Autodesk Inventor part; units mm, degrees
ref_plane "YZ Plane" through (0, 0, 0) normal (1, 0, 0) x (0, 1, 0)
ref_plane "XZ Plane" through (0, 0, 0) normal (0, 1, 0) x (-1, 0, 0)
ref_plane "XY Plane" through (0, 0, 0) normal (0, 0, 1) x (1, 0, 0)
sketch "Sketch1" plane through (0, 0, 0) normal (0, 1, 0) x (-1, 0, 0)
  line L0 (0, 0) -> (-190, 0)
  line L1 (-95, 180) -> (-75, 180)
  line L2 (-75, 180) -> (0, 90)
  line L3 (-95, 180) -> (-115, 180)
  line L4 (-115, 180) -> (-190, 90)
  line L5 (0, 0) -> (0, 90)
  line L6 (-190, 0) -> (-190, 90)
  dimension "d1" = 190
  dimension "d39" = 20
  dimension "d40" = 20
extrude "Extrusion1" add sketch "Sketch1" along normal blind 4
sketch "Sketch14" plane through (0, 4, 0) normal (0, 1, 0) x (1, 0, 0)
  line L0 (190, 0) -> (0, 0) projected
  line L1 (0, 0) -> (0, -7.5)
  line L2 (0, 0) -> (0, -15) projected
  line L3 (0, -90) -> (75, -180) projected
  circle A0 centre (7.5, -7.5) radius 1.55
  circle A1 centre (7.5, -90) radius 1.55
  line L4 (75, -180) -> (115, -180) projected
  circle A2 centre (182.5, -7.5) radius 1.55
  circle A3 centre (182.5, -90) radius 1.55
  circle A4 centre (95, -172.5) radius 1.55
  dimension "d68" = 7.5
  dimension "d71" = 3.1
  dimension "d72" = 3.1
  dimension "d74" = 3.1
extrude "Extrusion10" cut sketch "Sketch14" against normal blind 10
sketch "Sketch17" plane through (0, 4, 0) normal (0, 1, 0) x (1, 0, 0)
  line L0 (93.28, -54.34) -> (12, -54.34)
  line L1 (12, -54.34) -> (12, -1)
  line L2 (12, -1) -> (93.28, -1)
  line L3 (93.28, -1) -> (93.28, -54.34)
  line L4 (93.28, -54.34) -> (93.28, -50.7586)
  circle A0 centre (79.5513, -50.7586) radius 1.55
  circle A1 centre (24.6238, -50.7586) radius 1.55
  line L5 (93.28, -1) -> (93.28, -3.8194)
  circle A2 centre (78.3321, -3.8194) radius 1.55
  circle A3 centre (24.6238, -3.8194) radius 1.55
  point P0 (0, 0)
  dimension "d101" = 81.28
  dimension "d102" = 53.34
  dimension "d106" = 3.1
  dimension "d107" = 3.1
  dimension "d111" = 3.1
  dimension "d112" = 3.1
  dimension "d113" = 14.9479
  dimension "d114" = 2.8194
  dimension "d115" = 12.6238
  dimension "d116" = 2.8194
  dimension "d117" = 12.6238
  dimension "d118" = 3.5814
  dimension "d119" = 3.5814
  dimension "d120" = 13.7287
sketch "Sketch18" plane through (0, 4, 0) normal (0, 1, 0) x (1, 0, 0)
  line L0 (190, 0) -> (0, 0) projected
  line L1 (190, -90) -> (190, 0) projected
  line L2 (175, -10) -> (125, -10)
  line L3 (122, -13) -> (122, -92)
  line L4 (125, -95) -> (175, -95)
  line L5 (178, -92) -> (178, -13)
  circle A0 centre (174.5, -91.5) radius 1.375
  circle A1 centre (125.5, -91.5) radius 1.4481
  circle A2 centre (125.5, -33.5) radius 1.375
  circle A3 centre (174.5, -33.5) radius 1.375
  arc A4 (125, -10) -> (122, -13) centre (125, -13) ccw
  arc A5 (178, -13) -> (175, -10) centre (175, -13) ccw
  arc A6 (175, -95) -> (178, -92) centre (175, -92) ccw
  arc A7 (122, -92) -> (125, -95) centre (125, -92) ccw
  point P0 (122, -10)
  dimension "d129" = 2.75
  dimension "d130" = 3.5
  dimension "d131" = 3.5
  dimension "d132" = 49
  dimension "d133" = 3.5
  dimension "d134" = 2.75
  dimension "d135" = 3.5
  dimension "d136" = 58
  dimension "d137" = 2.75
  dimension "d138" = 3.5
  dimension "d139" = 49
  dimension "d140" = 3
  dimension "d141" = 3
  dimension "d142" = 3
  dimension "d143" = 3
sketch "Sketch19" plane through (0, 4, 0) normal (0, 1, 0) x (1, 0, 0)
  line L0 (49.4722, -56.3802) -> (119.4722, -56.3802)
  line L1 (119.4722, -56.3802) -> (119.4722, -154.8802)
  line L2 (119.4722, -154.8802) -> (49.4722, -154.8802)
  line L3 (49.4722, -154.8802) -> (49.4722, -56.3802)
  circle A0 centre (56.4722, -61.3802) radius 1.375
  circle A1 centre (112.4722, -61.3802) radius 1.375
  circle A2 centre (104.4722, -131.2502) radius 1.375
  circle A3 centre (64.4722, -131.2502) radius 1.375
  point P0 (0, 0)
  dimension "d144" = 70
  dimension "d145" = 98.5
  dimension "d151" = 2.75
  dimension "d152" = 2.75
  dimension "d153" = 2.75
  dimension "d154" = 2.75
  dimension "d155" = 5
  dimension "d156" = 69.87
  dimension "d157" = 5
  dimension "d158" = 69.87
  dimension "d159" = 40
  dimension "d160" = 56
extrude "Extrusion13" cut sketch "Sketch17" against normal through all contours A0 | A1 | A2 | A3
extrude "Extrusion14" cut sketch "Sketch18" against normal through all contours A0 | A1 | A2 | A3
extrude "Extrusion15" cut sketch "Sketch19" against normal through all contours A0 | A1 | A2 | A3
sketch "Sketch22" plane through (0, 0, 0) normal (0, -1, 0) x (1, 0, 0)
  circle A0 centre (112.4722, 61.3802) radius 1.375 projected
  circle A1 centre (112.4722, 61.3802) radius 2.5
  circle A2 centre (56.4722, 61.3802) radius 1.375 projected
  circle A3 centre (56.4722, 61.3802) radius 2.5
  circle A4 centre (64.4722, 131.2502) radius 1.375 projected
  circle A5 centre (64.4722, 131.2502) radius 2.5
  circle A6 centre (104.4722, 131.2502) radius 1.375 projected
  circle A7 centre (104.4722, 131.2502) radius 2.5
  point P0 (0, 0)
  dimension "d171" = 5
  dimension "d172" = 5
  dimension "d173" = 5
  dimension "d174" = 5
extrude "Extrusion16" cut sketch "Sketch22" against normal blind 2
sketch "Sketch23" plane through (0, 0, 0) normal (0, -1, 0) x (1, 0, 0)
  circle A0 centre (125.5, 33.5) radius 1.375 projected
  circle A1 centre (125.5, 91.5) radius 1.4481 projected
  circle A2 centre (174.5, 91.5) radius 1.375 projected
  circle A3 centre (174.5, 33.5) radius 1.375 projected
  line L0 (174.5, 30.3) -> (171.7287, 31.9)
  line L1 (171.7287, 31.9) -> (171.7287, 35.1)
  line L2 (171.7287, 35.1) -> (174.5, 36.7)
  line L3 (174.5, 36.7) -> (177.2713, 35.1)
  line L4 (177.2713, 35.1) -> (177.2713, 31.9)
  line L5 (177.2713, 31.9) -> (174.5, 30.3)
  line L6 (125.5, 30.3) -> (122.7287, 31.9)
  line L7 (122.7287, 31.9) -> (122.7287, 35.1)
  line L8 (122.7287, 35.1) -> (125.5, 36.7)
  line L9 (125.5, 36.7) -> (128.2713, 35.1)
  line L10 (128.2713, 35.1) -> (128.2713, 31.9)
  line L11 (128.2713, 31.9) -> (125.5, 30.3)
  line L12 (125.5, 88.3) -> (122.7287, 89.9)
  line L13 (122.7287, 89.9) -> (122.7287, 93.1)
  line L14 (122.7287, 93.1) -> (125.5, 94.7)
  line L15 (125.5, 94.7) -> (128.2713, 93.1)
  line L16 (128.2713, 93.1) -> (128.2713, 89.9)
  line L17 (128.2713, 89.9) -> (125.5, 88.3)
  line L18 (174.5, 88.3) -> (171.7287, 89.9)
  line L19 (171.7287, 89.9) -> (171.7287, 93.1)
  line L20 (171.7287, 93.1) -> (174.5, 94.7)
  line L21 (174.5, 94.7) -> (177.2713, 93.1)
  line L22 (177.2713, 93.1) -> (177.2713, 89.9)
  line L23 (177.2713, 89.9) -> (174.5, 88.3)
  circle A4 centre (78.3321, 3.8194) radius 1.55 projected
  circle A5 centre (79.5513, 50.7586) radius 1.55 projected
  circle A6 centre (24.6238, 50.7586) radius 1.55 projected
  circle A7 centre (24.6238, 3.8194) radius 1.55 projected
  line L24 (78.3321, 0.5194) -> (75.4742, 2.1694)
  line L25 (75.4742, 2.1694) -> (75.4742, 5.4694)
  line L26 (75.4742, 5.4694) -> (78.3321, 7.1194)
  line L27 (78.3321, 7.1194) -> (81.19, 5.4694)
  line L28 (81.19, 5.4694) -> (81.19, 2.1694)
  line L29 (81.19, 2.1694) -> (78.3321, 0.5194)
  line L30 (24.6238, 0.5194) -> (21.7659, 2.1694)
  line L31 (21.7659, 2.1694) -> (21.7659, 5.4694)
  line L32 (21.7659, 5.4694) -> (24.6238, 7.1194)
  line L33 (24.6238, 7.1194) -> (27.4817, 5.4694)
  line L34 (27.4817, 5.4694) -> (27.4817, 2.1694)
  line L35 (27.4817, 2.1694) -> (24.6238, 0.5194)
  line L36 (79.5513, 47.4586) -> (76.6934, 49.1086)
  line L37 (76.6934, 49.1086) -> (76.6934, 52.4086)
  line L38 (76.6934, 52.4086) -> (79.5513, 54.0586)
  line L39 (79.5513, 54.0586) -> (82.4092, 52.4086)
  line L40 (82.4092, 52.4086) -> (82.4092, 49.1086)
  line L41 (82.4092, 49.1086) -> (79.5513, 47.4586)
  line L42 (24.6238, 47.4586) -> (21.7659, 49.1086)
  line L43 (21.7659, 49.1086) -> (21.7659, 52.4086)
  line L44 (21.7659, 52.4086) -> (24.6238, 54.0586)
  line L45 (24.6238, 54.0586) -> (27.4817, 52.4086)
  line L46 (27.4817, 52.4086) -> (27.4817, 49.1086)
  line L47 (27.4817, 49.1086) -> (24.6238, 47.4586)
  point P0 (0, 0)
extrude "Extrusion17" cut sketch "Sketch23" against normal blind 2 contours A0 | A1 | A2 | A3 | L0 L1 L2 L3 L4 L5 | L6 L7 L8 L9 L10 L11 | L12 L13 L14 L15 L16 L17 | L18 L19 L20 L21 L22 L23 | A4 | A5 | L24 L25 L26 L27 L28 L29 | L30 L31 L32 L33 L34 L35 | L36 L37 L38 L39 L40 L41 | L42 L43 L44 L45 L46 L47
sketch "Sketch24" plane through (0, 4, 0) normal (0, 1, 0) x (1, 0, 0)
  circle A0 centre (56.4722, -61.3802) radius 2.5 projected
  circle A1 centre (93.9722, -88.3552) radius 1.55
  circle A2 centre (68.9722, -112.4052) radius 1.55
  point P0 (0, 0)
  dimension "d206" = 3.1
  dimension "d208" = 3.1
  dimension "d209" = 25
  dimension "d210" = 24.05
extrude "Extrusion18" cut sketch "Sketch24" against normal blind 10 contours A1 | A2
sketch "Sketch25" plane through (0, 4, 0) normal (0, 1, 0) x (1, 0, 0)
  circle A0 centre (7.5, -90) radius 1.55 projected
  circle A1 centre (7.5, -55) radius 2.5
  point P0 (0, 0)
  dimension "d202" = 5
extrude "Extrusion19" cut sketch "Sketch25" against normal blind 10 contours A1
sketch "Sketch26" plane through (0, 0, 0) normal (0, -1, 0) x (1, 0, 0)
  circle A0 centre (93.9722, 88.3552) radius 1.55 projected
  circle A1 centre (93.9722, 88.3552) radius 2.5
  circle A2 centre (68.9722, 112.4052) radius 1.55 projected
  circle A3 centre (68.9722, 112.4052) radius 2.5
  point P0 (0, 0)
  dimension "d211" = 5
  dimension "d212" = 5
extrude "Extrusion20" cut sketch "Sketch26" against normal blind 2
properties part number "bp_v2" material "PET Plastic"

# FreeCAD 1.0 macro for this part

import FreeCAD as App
import Part
import Sketcher

V = App.Vector
Q = App.Units.Quantity

doc = App.newDocument("Part")
body = doc.addObject("PartDesign::Body", "Body")

# Sketch on XZ plane
sketch1 = body.newObject("Sketcher::SketchObject", "Sketch")
sketch1.AttachmentSupport = (doc.getObject("XZ_Plane"), [""])
sketch1.MapMode = "FlatFace"
sketch1.addGeometry([
    Part.LineSegment(V(190, 0, 0), V(0, 0, 0)),  # 0
    Part.LineSegment(V(0, 0, 0), V(0, 90, 0)),  # 1
    Part.LineSegment(V(0, 90, 0), V(75, 180, 0)),  # 2
    Part.LineSegment(V(75, 180, 0), V(115, 180, 0)),  # 3
    Part.LineSegment(V(115, 180, 0), V(190, 90, 0)),  # 4
    Part.LineSegment(V(190, 90, 0), V(190, 0, 0)),  # 5
], False)
sketch1.addConstraint([
    Sketcher.Constraint("Coincident", 0, 2, 1, 1),
    Sketcher.Constraint("Coincident", 1, 2, 2, 1),
    Sketcher.Constraint("Coincident", 2, 2, 3, 1),
    Sketcher.Constraint("Coincident", 3, 2, 4, 1),
    Sketcher.Constraint("Coincident", 4, 2, 5, 1),
    Sketcher.Constraint("Coincident", 5, 2, 0, 1),
    Sketcher.Constraint("Horizontal", 0),
    Sketcher.Constraint("Vertical", 1),
    Sketcher.Constraint("Horizontal", 3),
    Sketcher.Constraint("Vertical", 5),
    Sketcher.Constraint("Coincident", 0, 2, -1, 1),
    Sketcher.Constraint("Horizontal", 1, 2, 4, 2),
    Sketcher.Constraint("Equal", 2, 4),
    Sketcher.Constraint("DistanceX", 0, 2, 0, 1, 190.0),
    Sketcher.Constraint("DistanceX", 3, 1, 3, 2, 40.0),
    Sketcher.Constraint("DistanceY", 1, 1, 1, 2, 90.0),
    Sketcher.Constraint("DistanceY", -1, 1, 2, 2, 180.0),
])
pad1 = body.newObject("PartDesign::Pad", "Pad")
pad1.Profile = sketch1
pad1.Length = 4
pad1.Reversed = True

# Sketch on XZ plane
sketch2 = body.newObject("Sketcher::SketchObject", "Sketch001")
sketch2.AttachmentSupport = (doc.getObject("XZ_Plane"), [""])
sketch2.MapMode = "FlatFace"
sketch2.AttachmentOffset = App.Placement(V(0, 0, -4), App.Rotation())
sketch2.addGeometry([
    Part.Circle(V(7.5, 7.5, 0), V(0, 0, 1), 1.55),  # 0
    Part.Circle(V(7.5, 90, 0), V(0, 0, 1), 1.55),  # 1
    Part.Circle(V(182.5, 7.5, 0), V(0, 0, 1), 1.55),  # 2
    Part.Circle(V(182.5, 90, 0), V(0, 0, 1), 1.55),  # 3
    Part.Circle(V(95, 172.5, 0), V(0, 0, 1), 1.55),  # 4
], False)
sketch2.addConstraint([
    Sketcher.Constraint("Equal", 0, 1),
    Sketcher.Constraint("Equal", 1, 2),
    Sketcher.Constraint("Equal", 2, 3),
    Sketcher.Constraint("Equal", 3, 4),
    Sketcher.Constraint("Horizontal", 0, 3, 2, 3),
    Sketcher.Constraint("Horizontal", 1, 3, 3, 3),
    Sketcher.Constraint("Vertical", 0, 3, 1, 3),
    Sketcher.Constraint("Vertical", 2, 3, 3, 3),
    Sketcher.Constraint("Diameter", 0, 3.1),
    Sketcher.Constraint("DistanceX", -1, 1, 0, 3, 7.5),
    Sketcher.Constraint("DistanceY", -1, 1, 0, 3, 7.5),
    Sketcher.Constraint("DistanceY", -1, 1, 1, 3, 90.0),
    Sketcher.Constraint("DistanceX", -1, 1, 4, 3, 95.0),
    Sketcher.Constraint("DistanceX", 0, 3, 2, 3, 175.0),
    Sketcher.Constraint("DistanceY", 0, 3, 4, 3, 165.0),
])
pocket1 = body.newObject("PartDesign::Pocket", "Pocket")
pocket1.Profile = sketch2
pocket1.Length = 10
pocket1.Reversed = True

# Sketch on XZ plane
sketch3 = body.newObject("Sketcher::SketchObject", "Sketch002")
sketch3.AttachmentSupport = (doc.getObject("XZ_Plane"), [""])
sketch3.MapMode = "FlatFace"
sketch3.AttachmentOffset = App.Placement(V(0, 0, -4), App.Rotation())
sketch3.addGeometry([
    Part.Circle(V(79.5513, 50.7586, 0), V(0, 0, 1), 1.55),
    Part.Circle(V(24.6238, 50.7586, 0), V(0, 0, 1), 1.55),
    Part.Circle(V(78.3321, 3.8194, 0), V(0, 0, 1), 1.55),
    Part.Circle(V(24.6238, 3.8194, 0), V(0, 0, 1), 1.55),
], False)
sketch3.addConstraint([
    Sketcher.Constraint("Equal", 0, 1),
    Sketcher.Constraint("Equal", 1, 2),
    Sketcher.Constraint("Equal", 2, 3),
    Sketcher.Constraint("Horizontal", 0, 3, 1, 3),
    Sketcher.Constraint("Horizontal", 2, 3, 3, 3),
    Sketcher.Constraint("Vertical", 1, 3, 3, 3),
    Sketcher.Constraint("Diameter", 0, 3.1),
    Sketcher.Constraint("DistanceX", -1, 1, 2, 3, 78.332),
    Sketcher.Constraint("DistanceX", -1, 1, 0, 3, 79.5513),
    Sketcher.Constraint("DistanceY", -1, 1, 0, 3, 50.7586),
    Sketcher.Constraint("DistanceX", -1, 1, 1, 3, 24.6238),
    Sketcher.Constraint("DistanceY", -1, 1, 2, 3, 3.8194),
])
pocket2 = body.newObject("PartDesign::Pocket", "Pocket001")
pocket2.Profile = sketch3
pocket2.Type = "ThroughAll"
pocket2.Reversed = True

# Sketch on XZ plane
sketch4 = body.newObject("Sketcher::SketchObject", "Sketch003")
sketch4.AttachmentSupport = (doc.getObject("XZ_Plane"), [""])
sketch4.MapMode = "FlatFace"
sketch4.AttachmentOffset = App.Placement(V(0, 0, -4), App.Rotation())
sketch4.addGeometry([
    Part.Circle(V(174.5, 91.5, 0), V(0, 0, 1), 1.375),
    Part.Circle(V(125.5, 91.5, 0), V(0, 0, 1), 1.4481),
    Part.Circle(V(125.5, 33.5, 0), V(0, 0, 1), 1.375),
    Part.Circle(V(174.5, 33.5, 0), V(0, 0, 1), 1.375),
], False)
sketch4.addConstraint([
    Sketcher.Constraint("Equal", 0, 2),
    Sketcher.Constraint("Equal", 2, 3),
    Sketcher.Constraint("Horizontal", 0, 3, 1, 3),
    Sketcher.Constraint("Horizontal", 2, 3, 3, 3),
    Sketcher.Constraint("Vertical", 1, 3, 2, 3),
    Sketcher.Constraint("Vertical", 0, 3, 3, 3),
    Sketcher.Constraint("Diameter", 0, 2.75),
    Sketcher.Constraint("DistanceX", 1, 3, 0, 3, 49.0),
    Sketcher.Constraint("DistanceY", 2, 3, 1, 3, 58.0),
    Sketcher.Constraint("Diameter", 1, 2.8962),
    Sketcher.Constraint("DistanceX", -1, 1, 0, 3, 174.5),
    Sketcher.Constraint("DistanceY", -1, 1, 0, 3, 91.5),
])
pocket3 = body.newObject("PartDesign::Pocket", "Pocket002")
pocket3.Profile = sketch4
pocket3.Type = "ThroughAll"
pocket3.Reversed = True

# Sketch on XZ plane
sketch5 = body.newObject("Sketcher::SketchObject", "Sketch004")
sketch5.AttachmentSupport = (doc.getObject("XZ_Plane"), [""])
sketch5.MapMode = "FlatFace"
sketch5.AttachmentOffset = App.Placement(V(0, 0, -4), App.Rotation())
sketch5.addGeometry([
    Part.Circle(V(56.4722, 61.3802, 0), V(0, 0, 1), 1.375),
    Part.Circle(V(112.4722, 61.3802, 0), V(0, 0, 1), 1.375),
    Part.Circle(V(104.4722, 131.2502, 0), V(0, 0, 1), 1.375),
    Part.Circle(V(64.4722, 131.2502, 0), V(0, 0, 1), 1.375),
], False)
sketch5.addConstraint([
    Sketcher.Constraint("Equal", 0, 1),
    Sketcher.Constraint("Equal", 1, 2),
    Sketcher.Constraint("Equal", 2, 3),
    Sketcher.Constraint("Horizontal", 0, 3, 1, 3),
    Sketcher.Constraint("Horizontal", 2, 3, 3, 3),
    Sketcher.Constraint("Diameter", 0, 2.75),
    Sketcher.Constraint("DistanceX", 0, 3, 1, 3, 56.0),
    Sketcher.Constraint("DistanceX", 3, 3, 2, 3, 40.0),
    Sketcher.Constraint("DistanceY", 1, 3, 2, 3, 69.87),
    Sketcher.Constraint("DistanceX", 2, 3, 1, 3, 8.0),
    Sketcher.Constraint("DistanceX", -1, 1, 0, 3, 56.4722),
    Sketcher.Constraint("DistanceY", -1, 1, 0, 3, 61.3802),
])
pocket4 = body.newObject("PartDesign::Pocket", "Pocket003")
pocket4.Profile = sketch5
pocket4.Type = "ThroughAll"
pocket4.Reversed = True

# Sketch on XZ plane
sketch6 = body.newObject("Sketcher::SketchObject", "Sketch005")
sketch6.AttachmentSupport = (doc.getObject("XZ_Plane"), [""])
sketch6.MapMode = "FlatFace"
sketch6.addGeometry([
    Part.Circle(V(112.4722, 61.3802, 0), V(0, 0, 1), 2.5),  # 0
    Part.Circle(V(112.4722, 61.3802, 0), V(0, 0, 1), 1.375),  # 1
    Part.Circle(V(56.4722, 61.3802, 0), V(0, 0, 1), 2.5),  # 2
    Part.Circle(V(56.4722, 61.3802, 0), V(0, 0, 1), 1.375),  # 3
    Part.Circle(V(64.4722, 131.2502, 0), V(0, 0, 1), 2.5),  # 4
    Part.Circle(V(64.4722, 131.2502, 0), V(0, 0, 1), 1.375),  # 5
    Part.Circle(V(104.4722, 131.2502, 0), V(0, 0, 1), 2.5),  # 6
    Part.Circle(V(104.4722, 131.2502, 0), V(0, 0, 1), 1.375),  # 7
], False)
sketch6.addConstraint([
    Sketcher.Constraint("Coincident", 1, 3, 0, 3),
    Sketcher.Constraint("Coincident", 3, 3, 2, 3),
    Sketcher.Constraint("Coincident", 5, 3, 4, 3),
    Sketcher.Constraint("Coincident", 7, 3, 6, 3),
    Sketcher.Constraint("Equal", 0, 2),
    Sketcher.Constraint("Equal", 1, 3),
    Sketcher.Constraint("Equal", 2, 4),
    Sketcher.Constraint("Equal", 3, 5),
    Sketcher.Constraint("Equal", 4, 6),
    Sketcher.Constraint("Equal", 5, 7),
    Sketcher.Constraint("Horizontal", 1, 3, 2, 3),
    Sketcher.Constraint("Horizontal", 5, 3, 6, 3),
    Sketcher.Constraint("Diameter", 0, 5.0),
    Sketcher.Constraint("Diameter", 1, 2.75),
    Sketcher.Constraint("DistanceX", 2, 3, 0, 3, 56.0),
    Sketcher.Constraint("DistanceX", 2, 3, 4, 3, 8.0),
    Sketcher.Constraint("DistanceX", 4, 3, 6, 3, 40.0),
    Sketcher.Constraint("DistanceY", 2, 3, 4, 3, 69.87),
    Sketcher.Constraint("DistanceX", -1, 1, 0, 3, 112.4722),
    Sketcher.Constraint("DistanceY", -1, 1, 0, 3, 61.3802),
])
pocket5 = body.newObject("PartDesign::Pocket", "Pocket004")
pocket5.Profile = sketch6
pocket5.Length = 2

# Sketch on XZ plane
sketch7 = body.newObject("Sketcher::SketchObject", "Sketch006")
sketch7.AttachmentSupport = (doc.getObject("XZ_Plane"), [""])
sketch7.MapMode = "FlatFace"
sketch7.addGeometry([
    Part.LineSegment(V(122.7287, 31.9, 0), V(125.5, 30.3, 0)),  # 0
    Part.LineSegment(V(125.5, 30.3, 0), V(128.2713, 31.9, 0)),  # 1
    Part.LineSegment(V(128.2713, 31.9, 0), V(128.2713, 35.1, 0)),  # 2
    Part.LineSegment(V(128.2713, 35.1, 0), V(125.5, 36.7, 0)),  # 3
    Part.LineSegment(V(125.5, 36.7, 0), V(122.7287, 35.1, 0)),  # 4
    Part.LineSegment(V(122.7287, 35.1, 0), V(122.7287, 31.9, 0)),  # 5
    Part.LineSegment(V(122.7287, 89.9, 0), V(125.5, 88.3, 0)),  # 6
    Part.LineSegment(V(125.5, 88.3, 0), V(128.2713, 89.9, 0)),  # 7
    Part.LineSegment(V(128.2713, 89.9, 0), V(128.2713, 93.1, 0)),  # 8
    Part.LineSegment(V(128.2713, 93.1, 0), V(125.5, 94.7, 0)),  # 9
    Part.LineSegment(V(125.5, 94.7, 0), V(122.7287, 93.1, 0)),  # 10
    Part.LineSegment(V(122.7287, 93.1, 0), V(122.7287, 89.9, 0)),  # 11
    Part.LineSegment(V(171.7287, 89.9, 0), V(174.5, 88.3, 0)),  # 12
    Part.LineSegment(V(174.5, 88.3, 0), V(177.2713, 89.9, 0)),  # 13
    Part.LineSegment(V(177.2713, 89.9, 0), V(177.2713, 93.1, 0)),  # 14
    Part.LineSegment(V(177.2713, 93.1, 0), V(174.5, 94.7, 0)),  # 15
    Part.LineSegment(V(174.5, 94.7, 0), V(171.7287, 93.1, 0)),  # 16
    Part.LineSegment(V(171.7287, 93.1, 0), V(171.7287, 89.9, 0)),  # 17
    Part.LineSegment(V(171.7287, 31.9, 0), V(174.5, 30.3, 0)),  # 18
    Part.LineSegment(V(174.5, 30.3, 0), V(177.2713, 31.9, 0)),  # 19
    Part.LineSegment(V(177.2713, 31.9, 0), V(177.2713, 35.1, 0)),  # 20
    Part.LineSegment(V(177.2713, 35.1, 0), V(174.5, 36.7, 0)),  # 21
    Part.LineSegment(V(174.5, 36.7, 0), V(171.7287, 35.1, 0)),  # 22
    Part.LineSegment(V(171.7287, 35.1, 0), V(171.7287, 31.9, 0)),  # 23
    Part.LineSegment(V(75.4742, 2.1694, 0), V(78.3321, 0.5194, 0)),  # 24
    Part.LineSegment(V(78.3321, 0.5194, 0), V(81.19, 2.1694, 0)),  # 25
    Part.LineSegment(V(81.19, 2.1694, 0), V(81.19, 5.4694, 0)),  # 26
    Part.LineSegment(V(81.19, 5.4694, 0), V(78.3321, 7.1194, 0)),  # 27
    Part.LineSegment(V(78.3321, 7.1194, 0), V(75.4742, 5.4694, 0)),  # 28
    Part.LineSegment(V(75.4742, 5.4694, 0), V(75.4742, 2.1694, 0)),  # 29
    Part.LineSegment(V(76.6934, 49.1086, 0), V(79.5513, 47.4586, 0)),  # 30
    Part.LineSegment(V(79.5513, 47.4586, 0), V(82.4092, 49.1086, 0)),  # 31
    Part.LineSegment(V(82.4092, 49.1086, 0), V(82.4092, 52.4086, 0)),  # 32
    Part.LineSegment(V(82.4092, 52.4086, 0), V(79.5513, 54.0586, 0)),  # 33
    Part.LineSegment(V(79.5513, 54.0586, 0), V(76.6934, 52.4086, 0)),  # 34
    Part.LineSegment(V(76.6934, 52.4086, 0), V(76.6934, 49.1086, 0)),  # 35
    Part.LineSegment(V(21.7659, 2.1694, 0), V(24.6238, 0.5194, 0)),  # 36
    Part.LineSegment(V(24.6238, 0.5194, 0), V(27.4817, 2.1694, 0)),  # 37
    Part.LineSegment(V(27.4817, 2.1694, 0), V(27.4817, 5.4694, 0)),  # 38
    Part.LineSegment(V(27.4817, 5.4694, 0), V(24.6238, 7.1194, 0)),  # 39
    Part.LineSegment(V(24.6238, 7.1194, 0), V(21.7659, 5.4694, 0)),  # 40
    Part.LineSegment(V(21.7659, 5.4694, 0), V(21.7659, 2.1694, 0)),  # 41
    Part.Circle(V(24.6238, 3.8194, 0), V(0, 0, 1), 1.55),  # 42
    Part.LineSegment(V(21.7659, 49.1086, 0), V(24.6238, 47.4586, 0)),  # 43
    Part.LineSegment(V(24.6238, 47.4586, 0), V(27.4817, 49.1086, 0)),  # 44
    Part.LineSegment(V(27.4817, 49.1086, 0), V(27.4817, 52.4086, 0)),  # 45
    Part.LineSegment(V(27.4817, 52.4086, 0), V(24.6238, 54.0586, 0)),  # 46
    Part.LineSegment(V(24.6238, 54.0586, 0), V(21.7659, 52.4086, 0)),  # 47
    Part.LineSegment(V(21.7659, 52.4086, 0), V(21.7659, 49.1086, 0)),  # 48
    Part.Circle(V(24.6238, 50.7586, 0), V(0, 0, 1), 1.55),  # 49
], False)
sketch7.addConstraint([
    Sketcher.Constraint("Coincident", 0, 2, 1, 1),
    Sketcher.Constraint("Coincident", 1, 2, 2, 1),
    Sketcher.Constraint("Coincident", 2, 2, 3, 1),
    Sketcher.Constraint("Coincident", 3, 2, 4, 1),
    Sketcher.Constraint("Coincident", 4, 2, 5, 1),
    Sketcher.Constraint("Coincident", 5, 2, 0, 1),
    Sketcher.Constraint("Coincident", 6, 2, 7, 1),
    Sketcher.Constraint("Coincident", 7, 2, 8, 1),
    Sketcher.Constraint("Coincident", 8, 2, 9, 1),
    Sketcher.Constraint("Coincident", 9, 2, 10, 1),
    Sketcher.Constraint("Coincident", 10, 2, 11, 1),
    Sketcher.Constraint("Coincident", 11, 2, 6, 1),
    Sketcher.Constraint("Coincident", 12, 2, 13, 1),
    Sketcher.Constraint("Coincident", 13, 2, 14, 1),
    Sketcher.Constraint("Coincident", 14, 2, 15, 1),
    Sketcher.Constraint("Coincident", 15, 2, 16, 1),
    Sketcher.Constraint("Coincident", 16, 2, 17, 1),
    Sketcher.Constraint("Coincident", 17, 2, 12, 1),
    Sketcher.Constraint("Coincident", 18, 2, 19, 1),
    Sketcher.Constraint("Coincident", 19, 2, 20, 1),
    Sketcher.Constraint("Coincident", 20, 2, 21, 1),
    Sketcher.Constraint("Coincident", 21, 2, 22, 1),
    Sketcher.Constraint("Coincident", 22, 2, 23, 1),
    Sketcher.Constraint("Coincident", 23, 2, 18, 1),
    Sketcher.Constraint("Coincident", 24, 2, 25, 1),
    Sketcher.Constraint("Coincident", 25, 2, 26, 1),
    Sketcher.Constraint("Coincident", 26, 2, 27, 1),
    Sketcher.Constraint("Coincident", 27, 2, 28, 1),
    Sketcher.Constraint("Coincident", 28, 2, 29, 1),
    Sketcher.Constraint("Coincident", 29, 2, 24, 1),
    Sketcher.Constraint("Coincident", 30, 2, 31, 1),
    Sketcher.Constraint("Coincident", 31, 2, 32, 1),
    Sketcher.Constraint("Coincident", 32, 2, 33, 1),
    Sketcher.Constraint("Coincident", 33, 2, 34, 1),
    Sketcher.Constraint("Coincident", 34, 2, 35, 1),
    Sketcher.Constraint("Coincident", 35, 2, 30, 1),
    Sketcher.Constraint("Coincident", 36, 2, 37, 1),
    Sketcher.Constraint("Coincident", 37, 2, 38, 1),
    Sketcher.Constraint("Coincident", 38, 2, 39, 1),
    Sketcher.Constraint("Coincident", 39, 2, 40, 1),
    Sketcher.Constraint("Coincident", 40, 2, 41, 1),
    Sketcher.Constraint("Coincident", 41, 2, 36, 1),
    Sketcher.Constraint("Coincident", 43, 2, 44, 1),
    Sketcher.Constraint("Coincident", 44, 2, 45, 1),
    Sketcher.Constraint("Coincident", 45, 2, 46, 1),
    Sketcher.Constraint("Coincident", 46, 2, 47, 1),
    Sketcher.Constraint("Coincident", 47, 2, 48, 1),
    Sketcher.Constraint("Coincident", 48, 2, 43, 1),
    Sketcher.Constraint("Vertical", 2),
    Sketcher.Constraint("Vertical", 5),
    Sketcher.Constraint("Vertical", 8),
    Sketcher.Constraint("Vertical", 11),
    Sketcher.Constraint("Vertical", 14),
    Sketcher.Constraint("Vertical", 17),
    Sketcher.Constraint("Vertical", 20),
    Sketcher.Constraint("Vertical", 23),
    Sketcher.Constraint("Vertical", 26),
    Sketcher.Constraint("Vertical", 29),
    Sketcher.Constraint("Vertical", 32),
    Sketcher.Constraint("Vertical", 35),
    Sketcher.Constraint("Vertical", 38),
    Sketcher.Constraint("Vertical", 41),
    Sketcher.Constraint("Vertical", 45),
    Sketcher.Constraint("Vertical", 48),
    Sketcher.Constraint("Equal", 42, 49),
    Sketcher.Constraint("Parallel", 0, 3),
    Sketcher.Constraint("Parallel", 1, 4),
    Sketcher.Constraint("Parallel", 3, 6),
    Sketcher.Constraint("Parallel", 4, 7),
    Sketcher.Constraint("Parallel", 6, 9),
    Sketcher.Constraint("Parallel", 7, 10),
    Sketcher.Constraint("Parallel", 9, 12),
    Sketcher.Constraint("Parallel", 10, 13),
    Sketcher.Constraint("Parallel", 12, 15),
    Sketcher.Constraint("Parallel", 13, 16),
    Sketcher.Constraint("Parallel", 15, 18),
    Sketcher.Constraint("Parallel", 16, 19),
    Sketcher.Constraint("Parallel", 18, 21),
    Sketcher.Constraint("Parallel", 19, 22),
    Sketcher.Constraint("Parallel", 21, 24),
    Sketcher.Constraint("Parallel", 22, 25),
    Sketcher.Constraint("Parallel", 24, 27),
    Sketcher.Constraint("Parallel", 25, 28),
    Sketcher.Constraint("Parallel", 27, 30),
    Sketcher.Constraint("Parallel", 28, 31),
    Sketcher.Constraint("Parallel", 30, 33),
    Sketcher.Constraint("Parallel", 31, 34),
    Sketcher.Constraint("Parallel", 33, 36),
    Sketcher.Constraint("Parallel", 34, 37),
    Sketcher.Constraint("Parallel", 36, 39),
    Sketcher.Constraint("Parallel", 37, 40),
    Sketcher.Constraint("Parallel", 39, 43),
    Sketcher.Constraint("Parallel", 40, 44),
    Sketcher.Constraint("Parallel", 43, 46),
    Sketcher.Constraint("Parallel", 44, 47),
    Sketcher.Constraint("Horizontal", 2, 2, 4, 2),
    Sketcher.Constraint("Horizontal", 1, 2, 5, 2),
    Sketcher.Constraint("Horizontal", 8, 2, 10, 2),
    Sketcher.Constraint("Horizontal", 7, 2, 11, 2),
    Sketcher.Constraint("Horizontal", 6, 2, 12, 2),
    Sketcher.Constraint("Horizontal", 11, 2, 13, 2),
    Sketcher.Constraint("Horizontal", 10, 2, 14, 2),
    Sketcher.Constraint("Horizontal", 9, 2, 15, 2),
    Sketcher.Constraint("Horizontal", 14, 2, 16, 2),
    Sketcher.Constraint("Horizontal", 0, 2, 18, 2),
    Sketcher.Constraint("Horizontal", 5, 2, 19, 2),
    Sketcher.Constraint("Horizontal", 4, 2, 20, 2),
    Sketcher.Constraint("Horizontal", 3, 2, 21, 2),
    Sketcher.Constraint("Horizontal", 20, 2, 22, 2),
    Sketcher.Constraint("Horizontal", 26, 2, 28, 2),
    Sketcher.Constraint("Horizontal", 25, 2, 29, 2),
    Sketcher.Constraint("Horizontal", 32, 2, 34, 2),
    Sketcher.Constraint("Horizontal", 31, 2, 35, 2),
    Sketcher.Constraint("Horizontal", 24, 2, 36, 2),
    Sketcher.Constraint("Horizontal", 29, 2, 37, 2),
    Sketcher.Constraint("Horizontal", 28, 2, 38, 2),
    Sketcher.Constraint("Horizontal", 27, 2, 39, 2),
    Sketcher.Constraint("Horizontal", 38, 2, 40, 2),
    Sketcher.Constraint("Horizontal", 30, 2, 43, 2),
    Sketcher.Constraint("Horizontal", 35, 2, 44, 2),
    Sketcher.Constraint("Horizontal", 34, 2, 45, 2),
    Sketcher.Constraint("Horizontal", 33, 2, 46, 2),
    Sketcher.Constraint("Horizontal", 45, 2, 47, 2),
    Sketcher.Constraint("Vertical", 42, 3, 49, 3),
    Sketcher.Constraint("Vertical", 0, 2, 3, 2),
    Sketcher.Constraint("Vertical", 3, 2, 6, 2),
    Sketcher.Constraint("Vertical", 2, 2, 7, 2),
    Sketcher.Constraint("Vertical", 15, 2, 18, 2),
    Sketcher.Constraint("Vertical", 49, 3, 36, 2),
    Sketcher.Constraint("Vertical", 39, 2, 43, 2),
    Sketcher.Constraint("Vertical", 38, 2, 44, 2),
    Sketcher.Constraint("Equal", 5, 8),
    Sketcher.Constraint("Equal", 29, 32),
    Sketcher.Constraint("Diameter", 42, 3.1),
    Sketcher.Constraint("Angle", 0, Q("-29.9998 deg")),
    Sketcher.Constraint("DistanceY", 2, 1, 2, 2, 3.2),
    Sketcher.Constraint("DistanceY", 26, 1, 26, 2, 3.3),
    Sketcher.Constraint("DistanceY", 1, 2, 7, 2, 58.0),
    Sketcher.Constraint("DistanceX", 6, 2, 12, 2, 49.0),
    Sketcher.Constraint("Distance", 0, 3.2),
    Sketcher.Constraint("Distance", 24, 3.3),
    Sketcher.Constraint("DistanceX", -1, 1, 0, 2, 125.5),
    Sketcher.Constraint("DistanceY", -1, 1, 0, 2, 30.3),
    Sketcher.Constraint("DistanceY", 24, 2, 42, 3, 3.3),
    Sketcher.Constraint("DistanceY", 43, 2, 49, 3, 3.3),
    Sketcher.Constraint("DistanceX", -1, 1, 25, 2, 81.19),
    Sketcher.Constraint("DistanceX", -1, 1, 40, 2, 21.766),
    Sketcher.Constraint("DistanceX", 28, 2, 30, 2, 4.077),
    Sketcher.Constraint("DistanceY", -1, 1, 42, 3, 3.8194),
    Sketcher.Constraint("DistanceY", -1, 1, 49, 3, 50.7586),
])
pocket6 = body.newObject("PartDesign::Pocket", "Pocket005")
pocket6.Profile = sketch7
pocket6.Length = 2

# Sketch on XZ plane
sketch8 = body.newObject("Sketcher::SketchObject", "Sketch007")
sketch8.AttachmentSupport = (doc.getObject("XZ_Plane"), [""])
sketch8.MapMode = "FlatFace"
sketch8.AttachmentOffset = App.Placement(V(0, 0, -4), App.Rotation())
sketch8.addGeometry([
    Part.Circle(V(93.9722, 88.3552, 0), V(0, 0, 1), 1.55),
    Part.Circle(V(68.9722, 112.4052, 0), V(0, 0, 1), 1.55),
], False)
sketch8.addConstraint([
    Sketcher.Constraint("Equal", 0, 1),
    Sketcher.Constraint("Diameter", 0, 3.1),
    Sketcher.Constraint("DistanceX", 1, 3, 0, 3, 25.0),
    Sketcher.Constraint("DistanceY", 0, 3, 1, 3, 24.05),
    Sketcher.Constraint("DistanceX", -1, 1, 0, 3, 93.9722),
    Sketcher.Constraint("DistanceY", -1, 1, 0, 3, 88.3552),
])
pocket7 = body.newObject("PartDesign::Pocket", "Pocket006")
pocket7.Profile = sketch8
pocket7.Length = 10
pocket7.Reversed = True

# Sketch on XZ plane
sketch9 = body.newObject("Sketcher::SketchObject", "Sketch008")
sketch9.AttachmentSupport = (doc.getObject("XZ_Plane"), [""])
sketch9.MapMode = "FlatFace"
sketch9.AttachmentOffset = App.Placement(V(0, 0, -4), App.Rotation())
sketch9.addGeometry(Part.Circle(V(7.5, 55, 0), V(0, 0, 1), 2.5), False)
sketch9.addConstraint([
    Sketcher.Constraint("Diameter", 0, 5.0),
    Sketcher.Constraint("DistanceY", -1, 1, 0, 3, 55.0),
    Sketcher.Constraint("DistanceX", -1, 1, 0, 3, 7.5),
])
pocket8 = body.newObject("PartDesign::Pocket", "Pocket007")
pocket8.Profile = sketch9
pocket8.Length = 10
pocket8.Reversed = True

# Sketch on XZ plane
sketch10 = body.newObject("Sketcher::SketchObject", "Sketch009")
sketch10.AttachmentSupport = (doc.getObject("XZ_Plane"), [""])
sketch10.MapMode = "FlatFace"
sketch10.addGeometry([
    Part.Circle(V(93.9722, 88.3552, 0), V(0, 0, 1), 2.5),
    Part.Circle(V(93.9722, 88.3552, 0), V(0, 0, 1), 1.55),
    Part.Circle(V(68.9722, 112.4052, 0), V(0, 0, 1), 2.5),
    Part.Circle(V(68.9722, 112.4052, 0), V(0, 0, 1), 1.55),
], False)
sketch10.addConstraint([
    Sketcher.Constraint("Coincident", 1, 3, 0, 3),
    Sketcher.Constraint("Coincident", 3, 3, 2, 3),
    Sketcher.Constraint("Equal", 0, 2),
    Sketcher.Constraint("Equal", 1, 3),
    Sketcher.Constraint("Diameter", 0, 5.0),
    Sketcher.Constraint("Diameter", 1, 3.1),
    Sketcher.Constraint("DistanceX", 2, 3, 0, 3, 25.0),
    Sketcher.Constraint("DistanceY", 0, 3, 2, 3, 24.05),
    Sketcher.Constraint("DistanceX", -1, 1, 0, 3, 93.9722),
    Sketcher.Constraint("DistanceY", -1, 1, 0, 3, 88.3552),
])
pocket9 = body.newObject("PartDesign::Pocket", "Pocket008")
pocket9.Profile = sketch10
pocket9.Length = 2

doc.recompute()
